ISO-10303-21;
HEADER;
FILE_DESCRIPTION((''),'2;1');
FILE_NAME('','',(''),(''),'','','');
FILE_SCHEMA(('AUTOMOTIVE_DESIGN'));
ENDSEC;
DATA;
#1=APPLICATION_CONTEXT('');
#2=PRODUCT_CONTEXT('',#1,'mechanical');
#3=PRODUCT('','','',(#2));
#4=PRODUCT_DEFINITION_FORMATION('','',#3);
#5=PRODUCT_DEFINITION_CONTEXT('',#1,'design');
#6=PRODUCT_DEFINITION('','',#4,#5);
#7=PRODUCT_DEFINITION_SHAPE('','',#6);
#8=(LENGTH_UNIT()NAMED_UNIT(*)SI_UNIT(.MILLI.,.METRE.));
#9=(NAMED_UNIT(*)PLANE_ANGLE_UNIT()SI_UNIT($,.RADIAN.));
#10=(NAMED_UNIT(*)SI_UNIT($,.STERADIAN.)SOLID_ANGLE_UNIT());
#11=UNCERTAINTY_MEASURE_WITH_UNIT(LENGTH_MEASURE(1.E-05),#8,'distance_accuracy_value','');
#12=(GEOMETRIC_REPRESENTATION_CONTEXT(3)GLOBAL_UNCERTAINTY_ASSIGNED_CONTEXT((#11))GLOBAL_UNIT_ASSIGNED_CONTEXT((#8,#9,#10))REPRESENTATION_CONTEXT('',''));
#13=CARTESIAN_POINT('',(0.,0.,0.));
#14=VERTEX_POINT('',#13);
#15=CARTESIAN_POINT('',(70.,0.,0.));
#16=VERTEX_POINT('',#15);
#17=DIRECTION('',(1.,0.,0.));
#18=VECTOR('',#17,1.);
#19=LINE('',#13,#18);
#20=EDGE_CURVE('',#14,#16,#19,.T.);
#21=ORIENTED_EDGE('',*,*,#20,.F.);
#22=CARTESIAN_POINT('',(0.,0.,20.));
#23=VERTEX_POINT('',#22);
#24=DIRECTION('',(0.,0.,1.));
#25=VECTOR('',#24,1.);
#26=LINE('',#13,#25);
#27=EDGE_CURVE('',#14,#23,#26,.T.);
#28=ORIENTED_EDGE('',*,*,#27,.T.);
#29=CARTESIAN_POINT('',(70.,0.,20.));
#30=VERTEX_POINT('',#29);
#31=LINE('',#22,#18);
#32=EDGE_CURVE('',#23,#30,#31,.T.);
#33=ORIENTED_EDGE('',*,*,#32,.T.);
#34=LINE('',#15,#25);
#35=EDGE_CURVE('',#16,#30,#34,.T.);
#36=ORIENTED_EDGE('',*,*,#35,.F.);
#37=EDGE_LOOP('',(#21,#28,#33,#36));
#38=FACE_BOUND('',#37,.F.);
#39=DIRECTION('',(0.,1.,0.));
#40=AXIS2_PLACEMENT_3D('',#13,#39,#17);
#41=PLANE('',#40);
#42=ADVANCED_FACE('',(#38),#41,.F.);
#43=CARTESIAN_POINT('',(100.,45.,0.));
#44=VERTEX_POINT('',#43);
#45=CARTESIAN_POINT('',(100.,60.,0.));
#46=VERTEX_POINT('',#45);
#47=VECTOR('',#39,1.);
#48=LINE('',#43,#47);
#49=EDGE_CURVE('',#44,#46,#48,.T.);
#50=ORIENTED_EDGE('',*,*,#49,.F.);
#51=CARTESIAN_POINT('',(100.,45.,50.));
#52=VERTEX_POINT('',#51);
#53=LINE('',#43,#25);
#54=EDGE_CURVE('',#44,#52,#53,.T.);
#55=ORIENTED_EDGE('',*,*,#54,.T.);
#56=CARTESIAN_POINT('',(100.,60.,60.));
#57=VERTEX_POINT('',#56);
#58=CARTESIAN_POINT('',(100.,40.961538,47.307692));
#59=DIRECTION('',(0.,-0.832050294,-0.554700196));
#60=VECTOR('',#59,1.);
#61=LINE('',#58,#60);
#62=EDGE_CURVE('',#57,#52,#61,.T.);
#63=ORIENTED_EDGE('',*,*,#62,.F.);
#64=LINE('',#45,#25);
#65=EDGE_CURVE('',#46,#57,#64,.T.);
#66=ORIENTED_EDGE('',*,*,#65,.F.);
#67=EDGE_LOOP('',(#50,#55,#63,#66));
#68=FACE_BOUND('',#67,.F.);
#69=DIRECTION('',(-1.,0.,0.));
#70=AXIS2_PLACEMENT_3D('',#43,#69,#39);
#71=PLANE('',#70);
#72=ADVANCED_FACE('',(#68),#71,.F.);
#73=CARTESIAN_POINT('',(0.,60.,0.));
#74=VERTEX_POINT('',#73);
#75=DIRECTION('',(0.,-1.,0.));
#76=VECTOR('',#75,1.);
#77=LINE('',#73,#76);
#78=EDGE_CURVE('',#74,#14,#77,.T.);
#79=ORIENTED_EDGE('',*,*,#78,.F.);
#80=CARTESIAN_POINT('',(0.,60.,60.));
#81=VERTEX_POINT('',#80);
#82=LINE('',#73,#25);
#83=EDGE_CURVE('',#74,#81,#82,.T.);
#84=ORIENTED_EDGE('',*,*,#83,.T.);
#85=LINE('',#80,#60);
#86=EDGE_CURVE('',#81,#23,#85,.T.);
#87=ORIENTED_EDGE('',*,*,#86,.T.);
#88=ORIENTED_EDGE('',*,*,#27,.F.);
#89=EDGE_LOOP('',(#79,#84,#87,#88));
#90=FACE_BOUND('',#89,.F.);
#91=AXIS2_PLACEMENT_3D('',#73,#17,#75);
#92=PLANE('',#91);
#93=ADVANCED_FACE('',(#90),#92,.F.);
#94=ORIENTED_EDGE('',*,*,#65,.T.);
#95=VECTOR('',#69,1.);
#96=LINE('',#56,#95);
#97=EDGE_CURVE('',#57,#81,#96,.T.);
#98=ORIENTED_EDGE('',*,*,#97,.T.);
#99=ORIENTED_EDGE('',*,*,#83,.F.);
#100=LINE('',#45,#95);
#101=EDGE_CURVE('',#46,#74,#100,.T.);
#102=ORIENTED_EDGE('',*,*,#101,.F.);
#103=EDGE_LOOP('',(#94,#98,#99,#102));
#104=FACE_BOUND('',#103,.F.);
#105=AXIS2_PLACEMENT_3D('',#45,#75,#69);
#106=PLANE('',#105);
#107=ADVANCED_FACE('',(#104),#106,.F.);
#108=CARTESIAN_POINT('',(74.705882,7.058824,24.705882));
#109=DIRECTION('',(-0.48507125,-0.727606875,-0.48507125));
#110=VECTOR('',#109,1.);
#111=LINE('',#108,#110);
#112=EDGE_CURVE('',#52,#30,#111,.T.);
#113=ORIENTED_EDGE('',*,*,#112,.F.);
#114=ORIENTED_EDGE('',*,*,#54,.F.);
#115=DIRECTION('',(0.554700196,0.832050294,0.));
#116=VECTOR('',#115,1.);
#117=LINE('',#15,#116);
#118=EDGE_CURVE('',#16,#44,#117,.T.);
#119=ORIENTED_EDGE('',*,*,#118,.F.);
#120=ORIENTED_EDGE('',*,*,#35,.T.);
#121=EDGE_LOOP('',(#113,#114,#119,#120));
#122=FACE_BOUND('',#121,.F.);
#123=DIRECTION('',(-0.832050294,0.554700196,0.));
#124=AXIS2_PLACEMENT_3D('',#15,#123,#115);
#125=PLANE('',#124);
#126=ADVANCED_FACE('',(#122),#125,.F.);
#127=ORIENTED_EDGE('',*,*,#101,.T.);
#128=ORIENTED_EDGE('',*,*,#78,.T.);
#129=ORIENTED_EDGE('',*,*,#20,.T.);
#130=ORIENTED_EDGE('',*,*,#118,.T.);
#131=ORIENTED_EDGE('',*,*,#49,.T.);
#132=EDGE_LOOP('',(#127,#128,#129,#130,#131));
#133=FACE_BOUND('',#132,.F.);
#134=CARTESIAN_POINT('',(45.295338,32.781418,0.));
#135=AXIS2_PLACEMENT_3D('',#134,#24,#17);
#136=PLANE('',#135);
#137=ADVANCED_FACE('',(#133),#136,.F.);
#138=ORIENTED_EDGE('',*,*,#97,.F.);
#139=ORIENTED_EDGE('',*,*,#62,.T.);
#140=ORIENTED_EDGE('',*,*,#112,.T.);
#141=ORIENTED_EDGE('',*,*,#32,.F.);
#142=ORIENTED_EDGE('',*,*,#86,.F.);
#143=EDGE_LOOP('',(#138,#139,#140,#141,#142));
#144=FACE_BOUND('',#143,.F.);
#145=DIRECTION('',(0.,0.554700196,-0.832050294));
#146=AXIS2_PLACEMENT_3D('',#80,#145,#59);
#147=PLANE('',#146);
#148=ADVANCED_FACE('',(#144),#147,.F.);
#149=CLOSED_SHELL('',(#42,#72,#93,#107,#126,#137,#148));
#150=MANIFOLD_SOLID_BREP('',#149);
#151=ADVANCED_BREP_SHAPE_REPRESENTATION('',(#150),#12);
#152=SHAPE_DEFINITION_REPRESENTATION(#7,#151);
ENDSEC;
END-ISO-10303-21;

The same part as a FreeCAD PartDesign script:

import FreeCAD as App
import Part
import Sketcher

V = App.Vector


def add_polygon(sketch, points):
    """Adds a closed chain of lines whose ends are joined by coincident constraints."""
    first, n = sketch.GeometryCount, len(points)
    for a, b in zip(points, points[1:] + points[:1]):
        sketch.addGeometry(Part.LineSegment(App.Vector(*a, 0), App.Vector(*b, 0)), False)
    for i in range(n):
        sketch.addConstraint(Sketcher.Constraint("Coincident", first + i, 2, first + (i + 1) % n, 1))

doc = App.newDocument("Part")
body = doc.addObject("PartDesign::Body", "Body")

sketch1 = doc.addObject("Sketcher::SketchObject", "Sketch")
body.addObject(sketch1)
sketch1.AttachmentSupport = (doc.XY_Plane, [""])
sketch1.MapMode = "FlatFace"
add_polygon(sketch1, [(0, 60), (0, 0), (70, 0), (100, 45), (100, 60)])
sketch1.addConstraint([
    Sketcher.Constraint("Vertical", 0),
    Sketcher.Constraint("Horizontal", 1),
    Sketcher.Constraint("Vertical", 3),
    Sketcher.Constraint("Horizontal", 4),
    Sketcher.Constraint("Coincident", 0, 2, -1, 1),
    Sketcher.Constraint("DistanceX", 1, 1, 1, 2, 70.0),
    Sketcher.Constraint("DistanceX", 4, 2, 4, 1, 100.0),
    Sketcher.Constraint("DistanceY", 0, 2, 0, 1, 60.0),
    Sketcher.Constraint("DistanceY", 3, 1, 3, 2, 15.0),
])
pad1 = doc.addObject("PartDesign::Pad", "Pad")
body.addObject(pad1)
pad1.Profile = sketch1
pad1.Length = 60

sketch2 = doc.addObject("Sketcher::SketchObject", "Sketch001")
body.addObject(sketch2)
sketch2.AttachmentSupport = (doc.YZ_Plane, [""])
sketch2.MapMode = "FlatFace"
add_polygon(sketch2, [(0, 60), (60, 60), (0, 20)])
sketch2.addConstraint([
    Sketcher.Constraint("Horizontal", 0),
    Sketcher.Constraint("Vertical", 2),
    Sketcher.Constraint("PointOnObject", 1, 2, -2),
    Sketcher.Constraint("DistanceX", 0, 1, 0, 2, 60.0),
    Sketcher.Constraint("DistanceY", 2, 1, 2, 2, 40.0),
    Sketcher.Constraint("DistanceY", -1, 1, 0, 2, 60.0),
])
pocket1 = doc.addObject("PartDesign::Pocket", "Pocket")
body.addObject(pocket1)
pocket1.Profile = sketch2
pocket1.Type = "ThroughAll"
pocket1.Reversed = True

doc.recompute()
